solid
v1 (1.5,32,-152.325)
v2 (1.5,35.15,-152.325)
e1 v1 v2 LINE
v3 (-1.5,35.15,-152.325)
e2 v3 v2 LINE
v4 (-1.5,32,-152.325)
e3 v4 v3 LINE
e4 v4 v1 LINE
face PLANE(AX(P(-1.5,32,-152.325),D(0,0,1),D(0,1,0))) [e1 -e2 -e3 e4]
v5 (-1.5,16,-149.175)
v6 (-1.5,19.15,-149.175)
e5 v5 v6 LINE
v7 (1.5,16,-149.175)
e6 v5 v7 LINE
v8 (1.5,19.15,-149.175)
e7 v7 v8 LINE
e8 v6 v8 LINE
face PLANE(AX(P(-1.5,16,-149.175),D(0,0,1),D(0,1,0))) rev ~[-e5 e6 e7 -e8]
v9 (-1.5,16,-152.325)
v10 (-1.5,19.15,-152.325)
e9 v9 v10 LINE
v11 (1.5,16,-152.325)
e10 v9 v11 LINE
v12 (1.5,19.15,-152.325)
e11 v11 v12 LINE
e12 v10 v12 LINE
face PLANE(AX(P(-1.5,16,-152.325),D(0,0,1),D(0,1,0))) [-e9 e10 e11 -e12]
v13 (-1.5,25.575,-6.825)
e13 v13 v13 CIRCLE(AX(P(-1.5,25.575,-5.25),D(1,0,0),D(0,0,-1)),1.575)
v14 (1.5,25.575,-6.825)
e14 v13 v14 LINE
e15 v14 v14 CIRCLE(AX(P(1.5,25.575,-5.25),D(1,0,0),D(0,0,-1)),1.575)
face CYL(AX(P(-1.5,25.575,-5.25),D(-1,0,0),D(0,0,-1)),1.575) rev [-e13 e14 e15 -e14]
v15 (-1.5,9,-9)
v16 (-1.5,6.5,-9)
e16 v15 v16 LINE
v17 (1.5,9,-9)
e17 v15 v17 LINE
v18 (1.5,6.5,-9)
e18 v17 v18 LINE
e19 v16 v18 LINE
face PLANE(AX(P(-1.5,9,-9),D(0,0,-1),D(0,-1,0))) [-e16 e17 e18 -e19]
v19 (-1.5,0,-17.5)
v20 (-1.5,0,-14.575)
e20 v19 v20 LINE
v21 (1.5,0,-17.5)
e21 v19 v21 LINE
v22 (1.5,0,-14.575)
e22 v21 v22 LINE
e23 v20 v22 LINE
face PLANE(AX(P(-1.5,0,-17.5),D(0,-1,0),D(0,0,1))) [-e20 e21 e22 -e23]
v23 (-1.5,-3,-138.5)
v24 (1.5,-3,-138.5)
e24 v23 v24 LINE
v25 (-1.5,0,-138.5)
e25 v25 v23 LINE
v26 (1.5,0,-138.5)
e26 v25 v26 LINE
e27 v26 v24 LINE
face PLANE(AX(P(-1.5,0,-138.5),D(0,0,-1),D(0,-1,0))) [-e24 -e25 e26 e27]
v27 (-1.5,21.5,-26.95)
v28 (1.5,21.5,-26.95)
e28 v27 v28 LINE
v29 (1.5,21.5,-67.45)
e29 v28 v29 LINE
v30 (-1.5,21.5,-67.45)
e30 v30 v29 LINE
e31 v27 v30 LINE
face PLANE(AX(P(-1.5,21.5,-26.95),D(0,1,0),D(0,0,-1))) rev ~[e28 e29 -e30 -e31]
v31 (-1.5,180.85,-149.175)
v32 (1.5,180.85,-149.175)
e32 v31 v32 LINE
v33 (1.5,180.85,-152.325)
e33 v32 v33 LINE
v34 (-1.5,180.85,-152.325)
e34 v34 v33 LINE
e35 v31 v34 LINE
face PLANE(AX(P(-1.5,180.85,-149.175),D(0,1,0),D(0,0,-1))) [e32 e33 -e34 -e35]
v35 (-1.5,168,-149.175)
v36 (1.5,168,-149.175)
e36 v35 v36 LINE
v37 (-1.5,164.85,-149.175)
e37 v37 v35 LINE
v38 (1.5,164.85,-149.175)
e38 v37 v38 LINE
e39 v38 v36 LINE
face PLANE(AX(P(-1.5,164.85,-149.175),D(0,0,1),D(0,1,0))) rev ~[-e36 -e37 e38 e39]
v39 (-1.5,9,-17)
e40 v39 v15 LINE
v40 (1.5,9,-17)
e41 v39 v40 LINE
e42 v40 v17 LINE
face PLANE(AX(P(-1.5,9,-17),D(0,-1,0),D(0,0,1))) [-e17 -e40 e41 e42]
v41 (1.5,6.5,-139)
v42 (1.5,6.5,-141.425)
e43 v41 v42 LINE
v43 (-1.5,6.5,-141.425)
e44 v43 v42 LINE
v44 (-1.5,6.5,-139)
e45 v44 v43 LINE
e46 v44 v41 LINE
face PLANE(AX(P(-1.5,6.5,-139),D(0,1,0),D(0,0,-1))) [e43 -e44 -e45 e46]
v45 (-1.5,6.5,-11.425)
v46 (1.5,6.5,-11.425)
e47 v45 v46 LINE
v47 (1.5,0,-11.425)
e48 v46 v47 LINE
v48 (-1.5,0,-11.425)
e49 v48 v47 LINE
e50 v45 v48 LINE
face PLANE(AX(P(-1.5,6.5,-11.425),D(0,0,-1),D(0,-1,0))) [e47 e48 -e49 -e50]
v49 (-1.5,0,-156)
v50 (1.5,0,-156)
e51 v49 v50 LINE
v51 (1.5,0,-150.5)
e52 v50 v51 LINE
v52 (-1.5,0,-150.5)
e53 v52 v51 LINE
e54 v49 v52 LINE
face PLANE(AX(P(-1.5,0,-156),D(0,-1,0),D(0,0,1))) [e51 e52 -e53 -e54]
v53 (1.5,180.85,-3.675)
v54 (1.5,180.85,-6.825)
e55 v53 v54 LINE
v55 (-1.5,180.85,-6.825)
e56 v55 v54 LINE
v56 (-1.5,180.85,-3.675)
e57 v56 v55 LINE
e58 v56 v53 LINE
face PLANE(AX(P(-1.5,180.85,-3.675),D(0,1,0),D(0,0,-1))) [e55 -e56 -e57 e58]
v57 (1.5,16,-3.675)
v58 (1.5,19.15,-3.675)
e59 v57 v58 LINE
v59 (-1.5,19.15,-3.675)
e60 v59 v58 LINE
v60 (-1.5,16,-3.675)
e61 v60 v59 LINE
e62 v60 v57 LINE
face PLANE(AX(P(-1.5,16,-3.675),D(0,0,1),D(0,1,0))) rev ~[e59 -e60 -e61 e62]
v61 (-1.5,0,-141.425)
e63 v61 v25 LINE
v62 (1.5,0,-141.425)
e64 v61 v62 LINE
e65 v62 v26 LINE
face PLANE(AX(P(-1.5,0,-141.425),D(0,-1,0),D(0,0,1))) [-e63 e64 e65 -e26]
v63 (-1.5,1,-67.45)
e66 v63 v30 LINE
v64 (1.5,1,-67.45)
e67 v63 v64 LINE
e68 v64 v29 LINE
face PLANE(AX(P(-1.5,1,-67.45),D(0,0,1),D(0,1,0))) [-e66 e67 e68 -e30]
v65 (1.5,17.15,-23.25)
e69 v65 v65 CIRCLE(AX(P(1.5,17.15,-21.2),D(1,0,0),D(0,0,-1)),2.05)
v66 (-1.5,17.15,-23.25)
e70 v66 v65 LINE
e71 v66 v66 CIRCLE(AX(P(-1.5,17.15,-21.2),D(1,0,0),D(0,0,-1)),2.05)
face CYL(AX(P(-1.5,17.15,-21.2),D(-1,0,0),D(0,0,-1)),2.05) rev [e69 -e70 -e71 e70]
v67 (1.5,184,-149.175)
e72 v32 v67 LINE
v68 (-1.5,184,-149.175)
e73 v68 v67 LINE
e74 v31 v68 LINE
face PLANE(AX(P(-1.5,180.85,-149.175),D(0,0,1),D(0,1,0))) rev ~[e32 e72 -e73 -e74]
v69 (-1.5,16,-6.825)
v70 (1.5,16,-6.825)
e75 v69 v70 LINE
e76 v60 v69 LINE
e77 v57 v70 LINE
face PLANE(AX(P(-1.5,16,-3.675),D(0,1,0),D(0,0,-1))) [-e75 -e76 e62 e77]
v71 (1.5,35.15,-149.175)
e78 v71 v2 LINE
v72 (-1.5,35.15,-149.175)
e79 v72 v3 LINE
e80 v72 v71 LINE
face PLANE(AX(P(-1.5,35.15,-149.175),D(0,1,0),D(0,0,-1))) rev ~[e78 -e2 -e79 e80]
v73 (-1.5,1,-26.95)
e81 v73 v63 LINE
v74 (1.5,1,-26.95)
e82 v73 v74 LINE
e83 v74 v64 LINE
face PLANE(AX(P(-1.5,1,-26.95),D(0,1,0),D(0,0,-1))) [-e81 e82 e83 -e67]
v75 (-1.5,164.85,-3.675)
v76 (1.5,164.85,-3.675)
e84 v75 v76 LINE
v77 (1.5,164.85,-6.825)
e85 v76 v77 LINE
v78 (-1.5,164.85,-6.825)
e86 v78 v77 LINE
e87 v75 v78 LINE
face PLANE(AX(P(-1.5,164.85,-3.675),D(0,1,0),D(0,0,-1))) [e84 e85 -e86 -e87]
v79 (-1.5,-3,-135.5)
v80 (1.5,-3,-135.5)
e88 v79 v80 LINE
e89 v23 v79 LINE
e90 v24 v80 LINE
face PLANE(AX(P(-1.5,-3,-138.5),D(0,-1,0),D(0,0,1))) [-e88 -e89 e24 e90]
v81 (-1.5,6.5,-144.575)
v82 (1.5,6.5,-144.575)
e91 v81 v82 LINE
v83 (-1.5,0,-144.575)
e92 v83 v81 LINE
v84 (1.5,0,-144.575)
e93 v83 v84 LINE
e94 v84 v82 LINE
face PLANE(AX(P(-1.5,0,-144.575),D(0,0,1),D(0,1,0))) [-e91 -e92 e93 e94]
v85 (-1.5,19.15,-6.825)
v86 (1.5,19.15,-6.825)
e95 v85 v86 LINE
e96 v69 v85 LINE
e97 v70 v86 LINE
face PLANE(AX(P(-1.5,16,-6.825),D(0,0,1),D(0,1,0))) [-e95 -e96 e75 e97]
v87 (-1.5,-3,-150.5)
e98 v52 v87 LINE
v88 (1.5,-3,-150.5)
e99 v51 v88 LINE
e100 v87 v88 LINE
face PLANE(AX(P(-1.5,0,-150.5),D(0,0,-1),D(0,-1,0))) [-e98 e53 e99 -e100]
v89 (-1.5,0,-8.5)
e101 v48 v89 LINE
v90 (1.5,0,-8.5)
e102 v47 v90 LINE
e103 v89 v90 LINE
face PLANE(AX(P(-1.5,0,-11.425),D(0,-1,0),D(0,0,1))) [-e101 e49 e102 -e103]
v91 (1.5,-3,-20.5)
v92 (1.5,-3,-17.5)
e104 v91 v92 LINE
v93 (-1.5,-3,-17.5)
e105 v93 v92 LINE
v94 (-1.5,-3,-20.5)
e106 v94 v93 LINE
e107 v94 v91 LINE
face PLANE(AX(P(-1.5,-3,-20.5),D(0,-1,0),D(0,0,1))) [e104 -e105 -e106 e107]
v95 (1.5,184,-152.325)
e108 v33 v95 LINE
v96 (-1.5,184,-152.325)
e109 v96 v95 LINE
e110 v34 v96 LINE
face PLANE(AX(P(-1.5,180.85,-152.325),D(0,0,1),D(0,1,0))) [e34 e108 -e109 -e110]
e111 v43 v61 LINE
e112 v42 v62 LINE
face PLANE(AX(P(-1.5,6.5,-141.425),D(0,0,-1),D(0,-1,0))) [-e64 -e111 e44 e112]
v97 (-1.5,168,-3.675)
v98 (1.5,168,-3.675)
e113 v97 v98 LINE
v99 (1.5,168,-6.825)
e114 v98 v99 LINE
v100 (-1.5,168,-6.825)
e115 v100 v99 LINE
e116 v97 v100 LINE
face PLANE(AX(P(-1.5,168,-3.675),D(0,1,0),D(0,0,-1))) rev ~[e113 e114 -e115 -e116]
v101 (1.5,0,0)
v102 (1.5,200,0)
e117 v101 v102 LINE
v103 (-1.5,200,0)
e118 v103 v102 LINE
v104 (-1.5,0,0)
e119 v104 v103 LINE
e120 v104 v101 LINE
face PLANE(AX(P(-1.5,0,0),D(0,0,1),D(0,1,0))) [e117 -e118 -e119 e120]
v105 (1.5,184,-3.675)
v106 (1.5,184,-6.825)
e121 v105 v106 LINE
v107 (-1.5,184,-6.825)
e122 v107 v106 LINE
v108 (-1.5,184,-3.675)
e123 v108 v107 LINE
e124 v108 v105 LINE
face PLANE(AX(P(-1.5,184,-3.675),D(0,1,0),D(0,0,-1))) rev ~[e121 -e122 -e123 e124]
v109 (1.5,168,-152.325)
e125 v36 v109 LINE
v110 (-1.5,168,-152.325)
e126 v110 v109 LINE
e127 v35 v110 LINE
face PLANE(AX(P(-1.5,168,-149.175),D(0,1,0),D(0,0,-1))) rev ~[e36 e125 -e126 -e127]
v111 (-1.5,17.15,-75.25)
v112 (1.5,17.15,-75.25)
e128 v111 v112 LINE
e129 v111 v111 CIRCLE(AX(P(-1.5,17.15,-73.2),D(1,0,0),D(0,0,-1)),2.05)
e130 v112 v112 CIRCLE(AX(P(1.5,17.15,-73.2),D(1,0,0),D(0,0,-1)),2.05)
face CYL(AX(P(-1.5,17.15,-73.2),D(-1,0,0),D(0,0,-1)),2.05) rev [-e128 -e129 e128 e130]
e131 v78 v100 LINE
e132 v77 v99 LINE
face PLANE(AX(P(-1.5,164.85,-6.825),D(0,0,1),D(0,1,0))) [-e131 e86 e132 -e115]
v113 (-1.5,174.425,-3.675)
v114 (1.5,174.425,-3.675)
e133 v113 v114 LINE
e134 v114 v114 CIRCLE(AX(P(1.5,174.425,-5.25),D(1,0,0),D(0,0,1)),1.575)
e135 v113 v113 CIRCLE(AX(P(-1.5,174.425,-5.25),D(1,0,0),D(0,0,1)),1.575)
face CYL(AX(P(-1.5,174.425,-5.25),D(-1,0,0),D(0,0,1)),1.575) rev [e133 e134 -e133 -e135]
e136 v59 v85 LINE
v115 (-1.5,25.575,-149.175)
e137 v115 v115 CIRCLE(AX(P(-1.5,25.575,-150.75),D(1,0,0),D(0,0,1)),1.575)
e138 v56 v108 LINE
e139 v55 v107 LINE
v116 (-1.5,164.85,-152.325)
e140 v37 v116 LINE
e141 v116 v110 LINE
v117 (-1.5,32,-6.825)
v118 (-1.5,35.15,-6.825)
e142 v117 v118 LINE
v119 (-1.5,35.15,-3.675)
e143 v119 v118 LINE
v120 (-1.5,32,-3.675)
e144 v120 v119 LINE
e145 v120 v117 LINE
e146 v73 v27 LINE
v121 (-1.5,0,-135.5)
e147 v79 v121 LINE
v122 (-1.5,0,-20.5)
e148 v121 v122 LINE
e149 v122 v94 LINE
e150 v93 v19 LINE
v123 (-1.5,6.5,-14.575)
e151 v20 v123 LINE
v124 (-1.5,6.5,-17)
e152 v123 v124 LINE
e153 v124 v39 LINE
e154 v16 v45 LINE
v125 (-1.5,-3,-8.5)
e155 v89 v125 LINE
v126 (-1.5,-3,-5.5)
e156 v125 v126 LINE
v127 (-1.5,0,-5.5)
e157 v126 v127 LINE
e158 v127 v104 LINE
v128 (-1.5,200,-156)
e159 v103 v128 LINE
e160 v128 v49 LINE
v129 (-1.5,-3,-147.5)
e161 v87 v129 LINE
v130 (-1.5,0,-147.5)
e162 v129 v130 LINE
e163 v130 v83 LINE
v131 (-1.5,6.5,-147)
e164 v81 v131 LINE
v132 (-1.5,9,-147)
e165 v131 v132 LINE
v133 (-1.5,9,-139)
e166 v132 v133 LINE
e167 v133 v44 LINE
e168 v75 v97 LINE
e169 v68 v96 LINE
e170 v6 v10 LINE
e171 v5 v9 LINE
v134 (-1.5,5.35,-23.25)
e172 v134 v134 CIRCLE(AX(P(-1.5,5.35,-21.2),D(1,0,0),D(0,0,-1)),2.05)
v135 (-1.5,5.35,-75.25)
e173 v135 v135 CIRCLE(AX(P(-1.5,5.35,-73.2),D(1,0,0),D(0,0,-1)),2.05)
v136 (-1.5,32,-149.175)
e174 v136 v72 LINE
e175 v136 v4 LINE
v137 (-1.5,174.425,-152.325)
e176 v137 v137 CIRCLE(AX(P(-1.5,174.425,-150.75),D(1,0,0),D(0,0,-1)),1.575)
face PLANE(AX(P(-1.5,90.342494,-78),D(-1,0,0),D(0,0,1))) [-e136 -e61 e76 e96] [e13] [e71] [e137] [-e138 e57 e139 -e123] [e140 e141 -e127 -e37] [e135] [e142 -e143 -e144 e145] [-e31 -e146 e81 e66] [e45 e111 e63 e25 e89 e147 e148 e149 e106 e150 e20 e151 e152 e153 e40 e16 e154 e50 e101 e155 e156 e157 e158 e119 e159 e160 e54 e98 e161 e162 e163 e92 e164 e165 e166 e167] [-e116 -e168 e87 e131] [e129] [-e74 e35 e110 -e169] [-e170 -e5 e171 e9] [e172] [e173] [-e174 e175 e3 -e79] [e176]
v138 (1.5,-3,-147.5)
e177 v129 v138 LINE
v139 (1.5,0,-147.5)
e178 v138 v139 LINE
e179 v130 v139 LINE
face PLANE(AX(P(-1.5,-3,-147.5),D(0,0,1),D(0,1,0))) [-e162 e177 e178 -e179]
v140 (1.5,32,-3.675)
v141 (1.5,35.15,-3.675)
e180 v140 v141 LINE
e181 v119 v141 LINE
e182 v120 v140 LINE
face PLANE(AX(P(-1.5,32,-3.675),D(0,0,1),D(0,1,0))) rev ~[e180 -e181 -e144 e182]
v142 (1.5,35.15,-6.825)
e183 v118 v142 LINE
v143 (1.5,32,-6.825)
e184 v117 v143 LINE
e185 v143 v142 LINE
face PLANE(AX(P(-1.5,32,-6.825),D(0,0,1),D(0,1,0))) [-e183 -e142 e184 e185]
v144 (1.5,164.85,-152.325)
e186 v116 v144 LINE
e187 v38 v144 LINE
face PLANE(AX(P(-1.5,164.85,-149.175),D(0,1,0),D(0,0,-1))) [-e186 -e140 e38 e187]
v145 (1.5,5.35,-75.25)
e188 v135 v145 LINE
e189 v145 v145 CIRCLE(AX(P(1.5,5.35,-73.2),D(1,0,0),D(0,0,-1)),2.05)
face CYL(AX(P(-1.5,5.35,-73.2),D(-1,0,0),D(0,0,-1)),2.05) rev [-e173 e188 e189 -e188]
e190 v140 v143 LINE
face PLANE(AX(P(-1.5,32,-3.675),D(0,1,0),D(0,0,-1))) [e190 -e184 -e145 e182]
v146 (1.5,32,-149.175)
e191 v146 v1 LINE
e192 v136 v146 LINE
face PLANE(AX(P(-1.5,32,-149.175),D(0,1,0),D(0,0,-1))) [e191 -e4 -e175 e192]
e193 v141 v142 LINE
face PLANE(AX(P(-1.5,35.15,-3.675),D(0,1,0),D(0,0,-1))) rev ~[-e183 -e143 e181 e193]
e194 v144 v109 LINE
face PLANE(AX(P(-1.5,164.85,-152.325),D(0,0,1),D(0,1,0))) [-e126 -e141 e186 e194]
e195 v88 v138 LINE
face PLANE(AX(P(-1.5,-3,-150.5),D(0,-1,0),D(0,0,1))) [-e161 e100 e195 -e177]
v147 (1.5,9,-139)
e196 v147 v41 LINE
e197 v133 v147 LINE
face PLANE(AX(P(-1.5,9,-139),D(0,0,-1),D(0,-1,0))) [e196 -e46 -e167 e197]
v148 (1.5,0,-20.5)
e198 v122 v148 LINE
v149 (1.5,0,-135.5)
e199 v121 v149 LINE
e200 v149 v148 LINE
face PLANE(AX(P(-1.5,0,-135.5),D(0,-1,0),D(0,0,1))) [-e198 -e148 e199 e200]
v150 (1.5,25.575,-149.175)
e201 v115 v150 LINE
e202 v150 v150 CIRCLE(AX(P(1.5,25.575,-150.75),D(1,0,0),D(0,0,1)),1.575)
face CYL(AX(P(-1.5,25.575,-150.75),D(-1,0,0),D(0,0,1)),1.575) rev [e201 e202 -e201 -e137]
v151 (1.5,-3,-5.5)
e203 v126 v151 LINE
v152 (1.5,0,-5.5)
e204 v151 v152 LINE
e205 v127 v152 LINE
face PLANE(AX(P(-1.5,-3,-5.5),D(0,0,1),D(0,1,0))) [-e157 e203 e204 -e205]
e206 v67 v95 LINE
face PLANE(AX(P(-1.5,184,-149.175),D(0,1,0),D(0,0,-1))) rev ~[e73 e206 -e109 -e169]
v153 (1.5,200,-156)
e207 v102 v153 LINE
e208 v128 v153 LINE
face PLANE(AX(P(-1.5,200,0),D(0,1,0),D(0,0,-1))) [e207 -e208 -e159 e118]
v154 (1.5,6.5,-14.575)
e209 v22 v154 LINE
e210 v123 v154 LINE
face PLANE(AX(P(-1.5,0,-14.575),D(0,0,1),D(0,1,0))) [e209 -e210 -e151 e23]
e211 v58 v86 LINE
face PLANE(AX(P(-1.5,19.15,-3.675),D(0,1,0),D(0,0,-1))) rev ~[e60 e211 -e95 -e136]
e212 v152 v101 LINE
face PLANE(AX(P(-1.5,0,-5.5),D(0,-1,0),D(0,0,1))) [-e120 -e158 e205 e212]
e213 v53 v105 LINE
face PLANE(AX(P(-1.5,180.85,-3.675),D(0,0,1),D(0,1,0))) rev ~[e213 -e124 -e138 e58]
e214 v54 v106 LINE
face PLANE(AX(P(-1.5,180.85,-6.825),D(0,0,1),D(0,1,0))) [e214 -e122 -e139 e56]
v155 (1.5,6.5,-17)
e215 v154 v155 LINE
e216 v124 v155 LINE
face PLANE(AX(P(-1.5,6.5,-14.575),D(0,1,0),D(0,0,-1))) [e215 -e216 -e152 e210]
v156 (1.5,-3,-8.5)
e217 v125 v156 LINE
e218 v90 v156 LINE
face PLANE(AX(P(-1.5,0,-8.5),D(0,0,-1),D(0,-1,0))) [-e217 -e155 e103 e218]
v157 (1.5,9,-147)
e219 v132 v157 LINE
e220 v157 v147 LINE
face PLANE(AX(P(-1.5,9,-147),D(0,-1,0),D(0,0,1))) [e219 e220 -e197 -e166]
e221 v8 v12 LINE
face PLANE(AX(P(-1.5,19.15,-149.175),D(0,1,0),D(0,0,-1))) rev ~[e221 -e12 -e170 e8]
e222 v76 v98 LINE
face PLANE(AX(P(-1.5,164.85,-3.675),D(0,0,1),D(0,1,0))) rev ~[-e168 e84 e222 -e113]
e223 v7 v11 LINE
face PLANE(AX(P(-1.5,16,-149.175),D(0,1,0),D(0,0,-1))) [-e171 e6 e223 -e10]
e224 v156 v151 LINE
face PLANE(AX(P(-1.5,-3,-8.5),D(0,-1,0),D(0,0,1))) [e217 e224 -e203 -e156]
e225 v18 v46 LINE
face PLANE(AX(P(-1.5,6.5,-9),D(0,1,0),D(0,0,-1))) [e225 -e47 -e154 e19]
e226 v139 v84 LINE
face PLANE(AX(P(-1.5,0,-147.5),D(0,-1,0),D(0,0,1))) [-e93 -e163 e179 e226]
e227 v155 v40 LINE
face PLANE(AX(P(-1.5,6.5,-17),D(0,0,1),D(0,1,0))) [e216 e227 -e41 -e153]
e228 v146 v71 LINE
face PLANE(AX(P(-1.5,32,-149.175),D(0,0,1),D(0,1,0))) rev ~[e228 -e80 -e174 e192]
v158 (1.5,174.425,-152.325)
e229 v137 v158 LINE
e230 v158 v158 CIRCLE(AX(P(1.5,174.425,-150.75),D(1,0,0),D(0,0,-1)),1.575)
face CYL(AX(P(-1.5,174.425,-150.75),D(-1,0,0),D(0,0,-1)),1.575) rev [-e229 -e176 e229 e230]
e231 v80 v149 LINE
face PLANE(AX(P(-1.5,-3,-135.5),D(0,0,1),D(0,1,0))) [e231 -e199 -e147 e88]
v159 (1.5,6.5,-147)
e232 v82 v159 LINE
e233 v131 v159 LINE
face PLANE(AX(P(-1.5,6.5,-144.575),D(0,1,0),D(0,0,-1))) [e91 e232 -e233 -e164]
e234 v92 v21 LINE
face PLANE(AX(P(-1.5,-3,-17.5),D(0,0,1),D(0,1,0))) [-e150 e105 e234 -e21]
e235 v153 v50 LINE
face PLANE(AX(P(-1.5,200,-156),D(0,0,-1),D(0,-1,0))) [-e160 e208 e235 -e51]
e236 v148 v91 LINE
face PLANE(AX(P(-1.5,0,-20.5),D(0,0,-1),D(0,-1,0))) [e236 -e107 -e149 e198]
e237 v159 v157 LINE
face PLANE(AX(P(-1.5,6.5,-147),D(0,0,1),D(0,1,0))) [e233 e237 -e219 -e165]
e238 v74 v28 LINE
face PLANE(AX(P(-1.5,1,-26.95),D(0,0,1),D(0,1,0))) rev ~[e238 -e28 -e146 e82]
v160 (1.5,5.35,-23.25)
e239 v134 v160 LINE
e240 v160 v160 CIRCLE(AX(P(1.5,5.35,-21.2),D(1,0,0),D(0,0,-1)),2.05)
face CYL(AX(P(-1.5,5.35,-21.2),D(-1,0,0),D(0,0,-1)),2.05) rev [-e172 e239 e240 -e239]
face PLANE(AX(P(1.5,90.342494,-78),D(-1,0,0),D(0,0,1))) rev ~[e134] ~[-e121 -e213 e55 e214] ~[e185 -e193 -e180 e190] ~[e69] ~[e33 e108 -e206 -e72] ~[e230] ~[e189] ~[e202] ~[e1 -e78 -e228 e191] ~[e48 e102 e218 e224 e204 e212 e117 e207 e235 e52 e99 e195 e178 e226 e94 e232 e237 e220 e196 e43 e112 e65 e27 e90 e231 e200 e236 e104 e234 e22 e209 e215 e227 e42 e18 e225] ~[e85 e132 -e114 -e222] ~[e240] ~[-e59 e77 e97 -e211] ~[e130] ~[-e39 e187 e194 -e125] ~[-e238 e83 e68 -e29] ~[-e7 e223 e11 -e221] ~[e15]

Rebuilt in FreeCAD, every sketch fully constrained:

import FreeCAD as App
import Part
import Sketcher
from FreeCAD import Vector

doc = App.newDocument("Part")
params = doc.addObject("Spreadsheet::Sheet", "Params")
for row, (alias, value) in enumerate([
    ("sketch1_diameter", "4.1 mm"),
    ("sketch1_diameter2", "3.15 mm"),
    ("sketch1_width", "3 mm"),
    ("sketch1_width2", "200 mm"),
    ("sketch1_height", "8 mm"),
    ("pad1_length", "1.5 mm"),
    ("pad1_length2", "1.5 mm"),
], start=1):
    params.set(f"A{row}", alias)
    params.set(f"B{row}", "=" + value)
    params.setAlias(f"B{row}", alias)

body = doc.addObject("PartDesign::Body", "Body")

# Sketch on YZ plane
sketch1 = body.newObject("Sketcher::SketchObject", "Sketch")
sketch1.AttachmentSupport = (doc.getObject("YZ_Plane"), [""])
sketch1.MapMode = "FlatFace"
sketch1.addGeometry(Part.LineSegment(Vector(0, -8.5, 0), Vector(0, -11.4, 0)), False)
sketch1.addGeometry(Part.LineSegment(Vector(0, -11.4, 0), Vector(6.5, -11.4, 0)), False)
sketch1.addGeometry(Part.LineSegment(Vector(6.5, -11.4, 0), Vector(6.5, -9, 0)), False)
sketch1.addGeometry(Part.LineSegment(Vector(6.5, -9, 0), Vector(9, -9, 0)), False)
sketch1.addGeometry(Part.LineSegment(Vector(9, -9, 0), Vector(9, -17, 0)), False)
sketch1.addGeometry(Part.LineSegment(Vector(9, -17, 0), Vector(6.5, -17, 0)), False)
sketch1.addGeometry(Part.LineSegment(Vector(6.5, -17, 0), Vector(6.5, -14.6, 0)), False)
sketch1.addGeometry(Part.LineSegment(Vector(6.5, -14.6, 0), Vector(0, -14.6, 0)), False)
sketch1.addGeometry(Part.LineSegment(Vector(0, -14.6, 0), Vector(0, -17.5, 0)), False)
sketch1.addGeometry(Part.LineSegment(Vector(0, -17.5, 0), Vector(-3, -17.5, 0)), False)
sketch1.addGeometry(Part.LineSegment(Vector(-3, -17.5, 0), Vector(-3, -20.5, 0)), False)
sketch1.addGeometry(Part.LineSegment(Vector(-3, -20.5, 0), Vector(0, -20.5, 0)), False)
sketch1.addGeometry(Part.LineSegment(Vector(0, -20.5, 0), Vector(0, -135.5, 0)), False)
sketch1.addGeometry(Part.LineSegment(Vector(0, -135.5, 0), Vector(-3, -135.5, 0)), False)
sketch1.addGeometry(Part.LineSegment(Vector(-3, -135.5, 0), Vector(-3, -138.5, 0)), False)
sketch1.addGeometry(Part.LineSegment(Vector(-3, -138.5, 0), Vector(0, -138.5, 0)), False)
sketch1.addGeometry(Part.LineSegment(Vector(0, -138.5, 0), Vector(0, -141.4, 0)), False)
sketch1.addGeometry(Part.LineSegment(Vector(0, -141.4, 0), Vector(6.5, -141.4, 0)), False)
sketch1.addGeometry(Part.LineSegment(Vector(6.5, -141.4, 0), Vector(6.5, -139, 0)), False)
sketch1.addGeometry(Part.LineSegment(Vector(6.5, -139, 0), Vector(9, -139, 0)), False)
sketch1.addGeometry(Part.LineSegment(Vector(9, -139, 0), Vector(9, -147, 0)), False)
sketch1.addGeometry(Part.LineSegment(Vector(9, -147, 0), Vector(6.5, -147, 0)), False)
sketch1.addGeometry(Part.LineSegment(Vector(6.5, -147, 0), Vector(6.5, -144.6, 0)), False)
sketch1.addGeometry(Part.LineSegment(Vector(6.5, -144.6, 0), Vector(0, -144.6, 0)), False)
sketch1.addGeometry(Part.LineSegment(Vector(0, -144.6, 0), Vector(0, -147.5, 0)), False)
sketch1.addGeometry(Part.LineSegment(Vector(0, -147.5, 0), Vector(-3, -147.5, 0)), False)
sketch1.addGeometry(Part.LineSegment(Vector(-3, -147.5, 0), Vector(-3, -150.5, 0)), False)
sketch1.addGeometry(Part.LineSegment(Vector(-3, -150.5, 0), Vector(0, -150.5, 0)), False)
sketch1.addGeometry(Part.LineSegment(Vector(0, -150.5, 0), Vector(0, -156, 0)), False)
sketch1.addGeometry(Part.LineSegment(Vector(0, -156, 0), Vector(200, -156, 0)), False)
sketch1.addGeometry(Part.LineSegment(Vector(200, -156, 0), Vector(200, 0, 0)), False)
sketch1.addGeometry(Part.LineSegment(Vector(200, 0, 0), Vector(0, 0, 0)), False)
sketch1.addGeometry(Part.LineSegment(Vector(0, 0, 0), Vector(0, -5.5, 0)), False)
sketch1.addGeometry(Part.LineSegment(Vector(0, -5.5, 0), Vector(-3, -5.5, 0)), False)
sketch1.addGeometry(Part.LineSegment(Vector(-3, -5.5, 0), Vector(-3, -8.5, 0)), False)
sketch1.addGeometry(Part.LineSegment(Vector(-3, -8.5, 0), Vector(0, -8.5, 0)), False)
sketch1.addGeometry(Part.LineSegment(Vector(16, -149.2, 0), Vector(19.1, -149.2, 0)), False)
sketch1.addGeometry(Part.LineSegment(Vector(19.1, -149.2, 0), Vector(19.1, -152.3, 0)), False)
sketch1.addGeometry(Part.LineSegment(Vector(19.1, -152.3, 0), Vector(16, -152.3, 0)), False)
sketch1.addGeometry(Part.LineSegment(Vector(16, -152.3, 0), Vector(16, -149.2, 0)), False)
sketch1.addGeometry(Part.Circle(Vector(25.6, -150.8, 0), Vector(0, 0, 1), 1.6), False)
sketch1.addGeometry(Part.LineSegment(Vector(32, -149.2, 0), Vector(35.1, -149.2, 0)), False)
sketch1.addGeometry(Part.LineSegment(Vector(35.1, -149.2, 0), Vector(35.1, -152.3, 0)), False)
sketch1.addGeometry(Part.LineSegment(Vector(35.1, -152.3, 0), Vector(32, -152.3, 0)), False)
sketch1.addGeometry(Part.LineSegment(Vector(32, -152.3, 0), Vector(32, -149.2, 0)), False)
sketch1.addGeometry(Part.Circle(Vector(5.3, -73.2, 0), Vector(0, 0, 1), 2), False)
sketch1.addGeometry(Part.Circle(Vector(17.1, -73.2, 0), Vector(0, 0, 1), 2), False)
sketch1.addGeometry(Part.LineSegment(Vector(1, -26.9, 0), Vector(21.5, -26.9, 0)), False)
sketch1.addGeometry(Part.LineSegment(Vector(21.5, -26.9, 0), Vector(21.5, -67.5, 0)), False)
sketch1.addGeometry(Part.LineSegment(Vector(21.5, -67.5, 0), Vector(1, -67.5, 0)), False)
sketch1.addGeometry(Part.LineSegment(Vector(1, -67.5, 0), Vector(1, -26.9, 0)), False)
sketch1.addGeometry(Part.Circle(Vector(5.3, -21.2, 0), Vector(0, 0, 1), 2), False)
sketch1.addGeometry(Part.Circle(Vector(17.1, -21.2, 0), Vector(0, 0, 1), 2), False)
sketch1.addGeometry(Part.LineSegment(Vector(16, -3.7, 0), Vector(19.1, -3.7, 0)), False)
sketch1.addGeometry(Part.LineSegment(Vector(19.1, -3.7, 0), Vector(19.1, -6.8, 0)), False)
sketch1.addGeometry(Part.LineSegment(Vector(19.1, -6.8, 0), Vector(16, -6.8, 0)), False)
sketch1.addGeometry(Part.LineSegment(Vector(16, -6.8, 0), Vector(16, -3.7, 0)), False)
sketch1.addGeometry(Part.Circle(Vector(25.6, -5.2, 0), Vector(0, 0, 1), 1.6), False)
sketch1.addGeometry(Part.LineSegment(Vector(32, -3.7, 0), Vector(35.1, -3.7, 0)), False)
sketch1.addGeometry(Part.LineSegment(Vector(35.1, -3.7, 0), Vector(35.1, -6.8, 0)), False)
sketch1.addGeometry(Part.LineSegment(Vector(35.1, -6.8, 0), Vector(32, -6.8, 0)), False)
sketch1.addGeometry(Part.LineSegment(Vector(32, -6.8, 0), Vector(32, -3.7, 0)), False)
sketch1.addGeometry(Part.LineSegment(Vector(164.8, -149.2, 0), Vector(168, -149.2, 0)), False)
sketch1.addGeometry(Part.LineSegment(Vector(168, -149.2, 0), Vector(168, -152.3, 0)), False)
sketch1.addGeometry(Part.LineSegment(Vector(168, -152.3, 0), Vector(164.8, -152.3, 0)), False)
sketch1.addGeometry(Part.LineSegment(Vector(164.8, -152.3, 0), Vector(164.8, -149.2, 0)), False)
sketch1.addGeometry(Part.Circle(Vector(174.4, -150.8, 0), Vector(0, 0, 1), 1.6), False)
sketch1.addGeometry(Part.LineSegment(Vector(180.8, -149.2, 0), Vector(184, -149.2, 0)), False)
sketch1.addGeometry(Part.LineSegment(Vector(184, -149.2, 0), Vector(184, -152.3, 0)), False)
sketch1.addGeometry(Part.LineSegment(Vector(184, -152.3, 0), Vector(180.8, -152.3, 0)), False)
sketch1.addGeometry(Part.LineSegment(Vector(180.8, -152.3, 0), Vector(180.8, -149.2, 0)), False)
sketch1.addGeometry(Part.LineSegment(Vector(164.8, -3.7, 0), Vector(168, -3.7, 0)), False)
sketch1.addGeometry(Part.LineSegment(Vector(168, -3.7, 0), Vector(168, -6.8, 0)), False)
sketch1.addGeometry(Part.LineSegment(Vector(168, -6.8, 0), Vector(164.8, -6.8, 0)), False)
sketch1.addGeometry(Part.LineSegment(Vector(164.8, -6.8, 0), Vector(164.8, -3.7, 0)), False)
sketch1.addGeometry(Part.Circle(Vector(174.4, -5.2, 0), Vector(0, 0, 1), 1.6), False)
sketch1.addGeometry(Part.LineSegment(Vector(180.8, -3.7, 0), Vector(184, -3.7, 0)), False)
sketch1.addGeometry(Part.LineSegment(Vector(184, -3.7, 0), Vector(184, -6.8, 0)), False)
sketch1.addGeometry(Part.LineSegment(Vector(184, -6.8, 0), Vector(180.8, -6.8, 0)), False)
sketch1.addGeometry(Part.LineSegment(Vector(180.8, -6.8, 0), Vector(180.8, -3.7, 0)), False)
sketch1.addConstraint(Sketcher.Constraint("Coincident", 0, 2, 1, 1))
sketch1.addConstraint(Sketcher.Constraint("Coincident", 1, 2, 2, 1))
sketch1.addConstraint(Sketcher.Constraint("Coincident", 2, 2, 3, 1))
sketch1.addConstraint(Sketcher.Constraint("Coincident", 3, 2, 4, 1))
sketch1.addConstraint(Sketcher.Constraint("Coincident", 4, 2, 5, 1))
sketch1.addConstraint(Sketcher.Constraint("Coincident", 5, 2, 6, 1))
sketch1.addConstraint(Sketcher.Constraint("Coincident", 6, 2, 7, 1))
sketch1.addConstraint(Sketcher.Constraint("Coincident", 7, 2, 8, 1))
sketch1.addConstraint(Sketcher.Constraint("Coincident", 8, 2, 9, 1))
sketch1.addConstraint(Sketcher.Constraint("Coincident", 9, 2, 10, 1))
sketch1.addConstraint(Sketcher.Constraint("Coincident", 10, 2, 11, 1))
sketch1.addConstraint(Sketcher.Constraint("Coincident", 11, 2, 12, 1))
sketch1.addConstraint(Sketcher.Constraint("Coincident", 12, 2, 13, 1))
sketch1.addConstraint(Sketcher.Constraint("Coincident", 13, 2, 14, 1))
sketch1.addConstraint(Sketcher.Constraint("Coincident", 14, 2, 15, 1))
sketch1.addConstraint(Sketcher.Constraint("Coincident", 15, 2, 16, 1))
sketch1.addConstraint(Sketcher.Constraint("Coincident", 16, 2, 17, 1))
sketch1.addConstraint(Sketcher.Constraint("Coincident", 17, 2, 18, 1))
sketch1.addConstraint(Sketcher.Constraint("Coincident", 18, 2, 19, 1))
sketch1.addConstraint(Sketcher.Constraint("Coincident", 19, 2, 20, 1))
sketch1.addConstraint(Sketcher.Constraint("Coincident", 20, 2, 21, 1))
sketch1.addConstraint(Sketcher.Constraint("Coincident", 21, 2, 22, 1))
sketch1.addConstraint(Sketcher.Constraint("Coincident", 22, 2, 23, 1))
sketch1.addConstraint(Sketcher.Constraint("Coincident", 23, 2, 24, 1))
sketch1.addConstraint(Sketcher.Constraint("Coincident", 24, 2, 25, 1))
sketch1.addConstraint(Sketcher.Constraint("Coincident", 25, 2, 26, 1))
sketch1.addConstraint(Sketcher.Constraint("Coincident", 26, 2, 27, 1))
sketch1.addConstraint(Sketcher.Constraint("Coincident", 27, 2, 28, 1))
sketch1.addConstraint(Sketcher.Constraint("Coincident", 28, 2, 29, 1))
sketch1.addConstraint(Sketcher.Constraint("Coincident", 29, 2, 30, 1))
sketch1.addConstraint(Sketcher.Constraint("Coincident", 30, 2, 31, 1))
sketch1.addConstraint(Sketcher.Constraint("Coincident", 31, 2, 32, 1))
sketch1.addConstraint(Sketcher.Constraint("Coincident", 32, 2, 33, 1))
sketch1.addConstraint(Sketcher.Constraint("Coincident", 33, 2, 34, 1))
sketch1.addConstraint(Sketcher.Constraint("Coincident", 34, 2, 35, 1))
sketch1.addConstraint(Sketcher.Constraint("Coincident", 35, 2, 0, 1))
sketch1.addConstraint(Sketcher.Constraint("Coincident", 36, 2, 37, 1))
sketch1.addConstraint(Sketcher.Constraint("Coincident", 37, 2, 38, 1))
sketch1.addConstraint(Sketcher.Constraint("Coincident", 38, 2, 39, 1))
sketch1.addConstraint(Sketcher.Constraint("Coincident", 39, 2, 36, 1))
sketch1.addConstraint(Sketcher.Constraint("Coincident", 41, 2, 42, 1))
sketch1.addConstraint(Sketcher.Constraint("Coincident", 42, 2, 43, 1))
sketch1.addConstraint(Sketcher.Constraint("Coincident", 43, 2, 44, 1))
sketch1.addConstraint(Sketcher.Constraint("Coincident", 44, 2, 41, 1))
sketch1.addConstraint(Sketcher.Constraint("Coincident", 47, 2, 48, 1))
sketch1.addConstraint(Sketcher.Constraint("Coincident", 48, 2, 49, 1))
sketch1.addConstraint(Sketcher.Constraint("Coincident", 49, 2, 50, 1))
sketch1.addConstraint(Sketcher.Constraint("Coincident", 50, 2, 47, 1))
sketch1.addConstraint(Sketcher.Constraint("Coincident", 53, 2, 54, 1))
sketch1.addConstraint(Sketcher.Constraint("Coincident", 54, 2, 55, 1))
sketch1.addConstraint(Sketcher.Constraint("Coincident", 55, 2, 56, 1))
sketch1.addConstraint(Sketcher.Constraint("Coincident", 56, 2, 53, 1))
sketch1.addConstraint(Sketcher.Constraint("Coincident", 58, 2, 59, 1))
sketch1.addConstraint(Sketcher.Constraint("Coincident", 59, 2, 60, 1))
sketch1.addConstraint(Sketcher.Constraint("Coincident", 60, 2, 61, 1))
sketch1.addConstraint(Sketcher.Constraint("Coincident", 61, 2, 58, 1))
sketch1.addConstraint(Sketcher.Constraint("Coincident", 62, 2, 63, 1))
sketch1.addConstraint(Sketcher.Constraint("Coincident", 63, 2, 64, 1))
sketch1.addConstraint(Sketcher.Constraint("Coincident", 64, 2, 65, 1))
sketch1.addConstraint(Sketcher.Constraint("Coincident", 65, 2, 62, 1))
sketch1.addConstraint(Sketcher.Constraint("Coincident", 67, 2, 68, 1))
sketch1.addConstraint(Sketcher.Constraint("Coincident", 68, 2, 69, 1))
sketch1.addConstraint(Sketcher.Constraint("Coincident", 69, 2, 70, 1))
sketch1.addConstraint(Sketcher.Constraint("Coincident", 70, 2, 67, 1))
sketch1.addConstraint(Sketcher.Constraint("Coincident", 71, 2, 72, 1))
sketch1.addConstraint(Sketcher.Constraint("Coincident", 72, 2, 73, 1))
sketch1.addConstraint(Sketcher.Constraint("Coincident", 73, 2, 74, 1))
sketch1.addConstraint(Sketcher.Constraint("Coincident", 74, 2, 71, 1))
sketch1.addConstraint(Sketcher.Constraint("Coincident", 76, 2, 77, 1))
sketch1.addConstraint(Sketcher.Constraint("Coincident", 77, 2, 78, 1))
sketch1.addConstraint(Sketcher.Constraint("Coincident", 78, 2, 79, 1))
sketch1.addConstraint(Sketcher.Constraint("Coincident", 79, 2, 76, 1))
sketch1.addConstraint(Sketcher.Constraint("Vertical", 0))
sketch1.addConstraint(Sketcher.Constraint("Horizontal", 1))
sketch1.addConstraint(Sketcher.Constraint("Vertical", 2))
sketch1.addConstraint(Sketcher.Constraint("Horizontal", 3))
sketch1.addConstraint(Sketcher.Constraint("Vertical", 4))
sketch1.addConstraint(Sketcher.Constraint("Horizontal", 5))
sketch1.addConstraint(Sketcher.Constraint("Vertical", 6))
sketch1.addConstraint(Sketcher.Constraint("Horizontal", 7))
sketch1.addConstraint(Sketcher.Constraint("Vertical", 8))
sketch1.addConstraint(Sketcher.Constraint("Horizontal", 9))
sketch1.addConstraint(Sketcher.Constraint("Vertical", 10))
sketch1.addConstraint(Sketcher.Constraint("Horizontal", 11))
sketch1.addConstraint(Sketcher.Constraint("Vertical", 12))
sketch1.addConstraint(Sketcher.Constraint("Horizontal", 13))
sketch1.addConstraint(Sketcher.Constraint("Vertical", 14))
sketch1.addConstraint(Sketcher.Constraint("Horizontal", 15))
sketch1.addConstraint(Sketcher.Constraint("Vertical", 16))
sketch1.addConstraint(Sketcher.Constraint("Horizontal", 17))
sketch1.addConstraint(Sketcher.Constraint("Vertical", 18))
sketch1.addConstraint(Sketcher.Constraint("Horizontal", 19))
sketch1.addConstraint(Sketcher.Constraint("Vertical", 20))
sketch1.addConstraint(Sketcher.Constraint("Horizontal", 21))
sketch1.addConstraint(Sketcher.Constraint("Vertical", 22))
sketch1.addConstraint(Sketcher.Constraint("Horizontal", 23))
sketch1.addConstraint(Sketcher.Constraint("Vertical", 24))
sketch1.addConstraint(Sketcher.Constraint("Horizontal", 25))
sketch1.addConstraint(Sketcher.Constraint("Vertical", 26))
sketch1.addConstraint(Sketcher.Constraint("Horizontal", 27))
sketch1.addConstraint(Sketcher.Constraint("Vertical", 28))
sketch1.addConstraint(Sketcher.Constraint("Horizontal", 29))
sketch1.addConstraint(Sketcher.Constraint("Vertical", 30))
sketch1.addConstraint(Sketcher.Constraint("Horizontal", 31))
sketch1.addConstraint(Sketcher.Constraint("Vertical", 32))
sketch1.addConstraint(Sketcher.Constraint("Horizontal", 33))
sketch1.addConstraint(Sketcher.Constraint("Vertical", 34))
sketch1.addConstraint(Sketcher.Constraint("Horizontal", 35))
sketch1.addConstraint(Sketcher.Constraint("Horizontal", 36))
sketch1.addConstraint(Sketcher.Constraint("Vertical", 37))
sketch1.addConstraint(Sketcher.Constraint("Horizontal", 38))
sketch1.addConstraint(Sketcher.Constraint("Vertical", 39))
sketch1.addConstraint(Sketcher.Constraint("Horizontal", 41))
sketch1.addConstraint(Sketcher.Constraint("Vertical", 42))
sketch1.addConstraint(Sketcher.Constraint("Horizontal", 43))
sketch1.addConstraint(Sketcher.Constraint("Vertical", 44))
sketch1.addConstraint(Sketcher.Constraint("Horizontal", 47))
sketch1.addConstraint(Sketcher.Constraint("Vertical", 48))
sketch1.addConstraint(Sketcher.Constraint("Horizontal", 49))
sketch1.addConstraint(Sketcher.Constraint("Vertical", 50))
sketch1.addConstraint(Sketcher.Constraint("Horizontal", 53))
sketch1.addConstraint(Sketcher.Constraint("Vertical", 54))
sketch1.addConstraint(Sketcher.Constraint("Horizontal", 55))
sketch1.addConstraint(Sketcher.Constraint("Vertical", 56))
sketch1.addConstraint(Sketcher.Constraint("Horizontal", 58))
sketch1.addConstraint(Sketcher.Constraint("Vertical", 59))
sketch1.addConstraint(Sketcher.Constraint("Horizontal", 60))
sketch1.addConstraint(Sketcher.Constraint("Vertical", 61))
sketch1.addConstraint(Sketcher.Constraint("Horizontal", 62))
sketch1.addConstraint(Sketcher.Constraint("Vertical", 63))
sketch1.addConstraint(Sketcher.Constraint("Horizontal", 64))
sketch1.addConstraint(Sketcher.Constraint("Vertical", 65))
sketch1.addConstraint(Sketcher.Constraint("Horizontal", 67))
sketch1.addConstraint(Sketcher.Constraint("Vertical", 68))
sketch1.addConstraint(Sketcher.Constraint("Horizontal", 69))
sketch1.addConstraint(Sketcher.Constraint("Vertical", 70))
sketch1.addConstraint(Sketcher.Constraint("Horizontal", 71))
sketch1.addConstraint(Sketcher.Constraint("Vertical", 72))
sketch1.addConstraint(Sketcher.Constraint("Horizontal", 73))
sketch1.addConstraint(Sketcher.Constraint("Vertical", 74))
sketch1.addConstraint(Sketcher.Constraint("Horizontal", 76))
sketch1.addConstraint(Sketcher.Constraint("Vertical", 77))
sketch1.addConstraint(Sketcher.Constraint("Horizontal", 78))
sketch1.addConstraint(Sketcher.Constraint("Vertical", 79))
sketch1.addConstraint(Sketcher.Constraint("Coincident", 31, 2, -1, 1))
sketch1.addConstraint(Sketcher.Constraint("Equal", 45, 46))
sketch1.addConstraint(Sketcher.Constraint("Equal", 46, 51))
sketch1.addConstraint(Sketcher.Constraint("Equal", 51, 52))
sketch1.addConstraint(Sketcher.Constraint("Equal", 40, 57))
sketch1.addConstraint(Sketcher.Constraint("Equal", 57, 66))
sketch1.addConstraint(Sketcher.Constraint("Equal", 66, 75))
sketch1.addConstraint(Sketcher.Constraint("PointOnObject", 0, 2, -2))
sketch1.addConstraint(Sketcher.Constraint("PointOnObject", 7, 2, -2))
sketch1.addConstraint(Sketcher.Constraint("PointOnObject", 11, 2, -2))
sketch1.addConstraint(Sketcher.Constraint("PointOnObject", 15, 2, -2))
sketch1.addConstraint(Sketcher.Constraint("PointOnObject", 23, 2, -2))
sketch1.addConstraint(Sketcher.Constraint("PointOnObject", 27, 2, -2))
sketch1.addConstraint(Sketcher.Constraint("Horizontal", 45, 3, 46, 3))
sketch1.addConstraint(Sketcher.Constraint("Horizontal", 51, 3, 52, 3))
sketch1.addConstraint(Sketcher.Constraint("Horizontal", 40, 3, 66, 3))
sketch1.addConstraint(Sketcher.Constraint("Horizontal", 57, 3, 75, 3))
sketch1.addConstraint(Sketcher.Constraint("Horizontal", 39, 2, 41, 2))
sketch1.addConstraint(Sketcher.Constraint("Horizontal", 38, 2, 42, 2))
sketch1.addConstraint(Sketcher.Constraint("Horizontal", 56, 2, 58, 2))
sketch1.addConstraint(Sketcher.Constraint("Horizontal", 55, 2, 59, 2))
sketch1.addConstraint(Sketcher.Constraint("Horizontal", 44, 2, 62, 2))
sketch1.addConstraint(Sketcher.Constraint("Horizontal", 43, 2, 63, 2))
sketch1.addConstraint(Sketcher.Constraint("Horizontal", 65, 2, 67, 2))
sketch1.addConstraint(Sketcher.Constraint("Horizontal", 64, 2, 68, 2))
sketch1.addConstraint(Sketcher.Constraint("Horizontal", 61, 2, 71, 2))
sketch1.addConstraint(Sketcher.Constraint("Horizontal", 60, 2, 72, 2))
sketch1.addConstraint(Sketcher.Constraint("Horizontal", 74, 2, 76, 2))
sketch1.addConstraint(Sketcher.Constraint("Horizontal", 73, 2, 77, 2))
sketch1.addConstraint(Sketcher.Constraint("Vertical", 45, 3, 51, 3))
sketch1.addConstraint(Sketcher.Constraint("Vertical", 46, 3, 52, 3))
sketch1.addConstraint(Sketcher.Constraint("Vertical", 40, 3, 57, 3))
sketch1.addConstraint(Sketcher.Constraint("Vertical", 66, 3, 75, 3))
sketch1.addConstraint(Sketcher.Constraint("Vertical", 2, 2, 5, 2))
sketch1.addConstraint(Sketcher.Constraint("Vertical", 10, 2, 13, 2))
sketch1.addConstraint(Sketcher.Constraint("Vertical", 6, 2, 17, 2))
sketch1.addConstraint(Sketcher.Constraint("Vertical", 4, 2, 19, 2))
sketch1.addConstraint(Sketcher.Constraint("Vertical", 18, 2, 21, 2))
sketch1.addConstraint(Sketcher.Constraint("Vertical", 14, 2, 25, 2))
sketch1.addConstraint(Sketcher.Constraint("Vertical", 26, 2, 33, 2))
sketch1.addConstraint(Sketcher.Constraint("Vertical", 37, 2, 53, 2))
sketch1.addConstraint(Sketcher.Constraint("Vertical", 39, 2, 55, 2))
sketch1.addConstraint(Sketcher.Constraint("Vertical", 42, 2, 58, 2))
sketch1.addConstraint(Sketcher.Constraint("Vertical", 44, 2, 60, 2))
sketch1.addConstraint(Sketcher.Constraint("Vertical", 63, 2, 71, 2))
sketch1.addConstraint(Sketcher.Constraint("Vertical", 65, 2, 73, 2))
sketch1.addConstraint(Sketcher.Constraint("Vertical", 68, 2, 76, 2))
sketch1.addConstraint(Sketcher.Constraint("Vertical", 70, 2, 78, 2))
sketch1.addConstraint(Sketcher.Constraint("Equal", 38, 41))
sketch1.addConstraint(Sketcher.Constraint("Equal", 60, 62))
sketch1.addConstraint(Sketcher.Constraint("Equal", 64, 67))
sketch1.addConstraint(Sketcher.Constraint("Equal", 2, 6))
sketch1.addConstraint(Sketcher.Constraint("Equal", 0, 8))
sketch1.addConstraint(Sketcher.Constraint("Equal", 35, 10))
sketch1.addConstraint(Sketcher.Constraint("Equal", 10, 14))
sketch1.addConstraint(Sketcher.Constraint("Equal", 8, 16))
sketch1.addConstraint(Sketcher.Constraint("Equal", 6, 18))
sketch1.addConstraint(Sketcher.Constraint("Equal", 4, 20))
sketch1.addConstraint(Sketcher.Constraint("Equal", 18, 22))
sketch1.addConstraint(Sketcher.Constraint("Equal", 16, 24))
sketch1.addConstraint(Sketcher.Constraint("Equal", 14, 26))
sketch1.addConstraint(Sketcher.Constraint("Equal", 28, 32))
sketch1.addConstraint(Sketcher.Constraint("Equal", 26, 34))
sketch1.addConstraint(Sketcher.Constraint("Equal", 78, 37))
sketch1.addConstraint(Sketcher.Constraint("Equal", 44, 54))
sketch1.addConstraint(Sketcher.Constraint("Diameter", 45, 4.1))
sketch1.addConstraint(Sketcher.Constraint("Diameter", 40, 3.15))
sketch1.addConstraint(Sketcher.Constraint("DistanceX", 9, 2, 9, 1, 3.0))
sketch1.addConstraint(Sketcher.Constraint("DistanceX", 29, 1, 29, 2, 200.0))
sketch1.addConstraint(Sketcher.Constraint("DistanceY", 4, 2, 4, 1, 8.0))
sketch1.addConstraint(Sketcher.Constraint("DistanceY", 12, 2, 12, 1, 115.0))
sketch1.addConstraint(Sketcher.Constraint("DistanceY", 30, 1, 30, 2, 156.0))
sketch1.addConstraint(Sketcher.Constraint("DistanceX", 1, 1, 1, 2, 6.5))
sketch1.addConstraint(Sketcher.Constraint("DistanceX", 3, 1, 3, 2, 2.5))
sketch1.addConstraint(Sketcher.Constraint("DistanceX", 47, 1, 47, 2, 20.5))
sketch1.addConstraint(Sketcher.Constraint("DistanceY", 28, 2, 28, 1, 5.5))
sketch1.addConstraint(Sketcher.Constraint("DistanceY", 48, 2, 48, 1, 40.5))
sketch1.addConstraint(Sketcher.Constraint("DistanceX", -1, 1, 38, 2, 16.0))
sketch1.addConstraint(Sketcher.Constraint("DistanceX", -1, 1, 43, 2, 32.0))
sketch1.addConstraint(Sketcher.Constraint("DistanceX", -1, 1, 49, 2, 1.0))
sketch1.addConstraint(Sketcher.Constraint("DistanceX", -1, 1, 62, 2, 168.0))
sketch1.addConstraint(Sketcher.Constraint("DistanceX", -1, 1, 67, 2, 184.0))
sketch1.addConstraint(Sketcher.Constraint("DistanceX", 36, 1, 36, 2, 3.15))
sketch1.addConstraint(Sketcher.Constraint("DistanceY", 45, 3, -1, 1, 73.2))
sketch1.addConstraint(Sketcher.Constraint("DistanceY", 51, 3, -1, 1, 21.2))
sketch1.addConstraint(Sketcher.Constraint("DistanceY", 0, 2, 0, 1, 2.925))
sketch1.addConstraint(Sketcher.Constraint("DistanceY", 40, 3, -1, 1, 150.75))
sketch1.addConstraint(Sketcher.Constraint("DistanceX", -1, 1, 45, 3, 5.35))
sketch1.addConstraint(Sketcher.Constraint("DistanceX", -1, 1, 46, 3, 17.15))
sketch1.addConstraint(Sketcher.Constraint("DistanceY", 57, 3, -1, 1, 5.25))
sketch1.addConstraint(Sketcher.Constraint("DistanceY", 47, 2, -1, 1, 26.95))
sketch1.addConstraint(Sketcher.Constraint("DistanceX", -1, 1, 40, 3, 25.575))
sketch1.addConstraint(Sketcher.Constraint("DistanceX", -1, 1, 66, 3, 174.425))
sketch1.addConstraint(Sketcher.Constraint("DistanceY", 36, 2, -1, 1, 149.175))
sketch1.addConstraint(Sketcher.Constraint("DistanceY", 53, 2, -1, 1, 3.675))
sketch1.setExpression("Constraints[209]", "Params.sketch1_diameter")
sketch1.setExpression("Constraints[210]", "Params.sketch1_diameter2")
sketch1.setExpression("Constraints[211]", "Params.sketch1_width")
sketch1.setExpression("Constraints[212]", "Params.sketch1_width2")
sketch1.setExpression("Constraints[213]", "Params.sketch1_height")
pad1 = body.newObject("PartDesign::Pad", "Pad")
pad1.Profile = sketch1
pad1.Type = "TwoLengths"
pad1.setExpression("Length", "Params.pad1_length")
pad1.setExpression("Length2", "Params.pad1_length2")

doc.recompute()
